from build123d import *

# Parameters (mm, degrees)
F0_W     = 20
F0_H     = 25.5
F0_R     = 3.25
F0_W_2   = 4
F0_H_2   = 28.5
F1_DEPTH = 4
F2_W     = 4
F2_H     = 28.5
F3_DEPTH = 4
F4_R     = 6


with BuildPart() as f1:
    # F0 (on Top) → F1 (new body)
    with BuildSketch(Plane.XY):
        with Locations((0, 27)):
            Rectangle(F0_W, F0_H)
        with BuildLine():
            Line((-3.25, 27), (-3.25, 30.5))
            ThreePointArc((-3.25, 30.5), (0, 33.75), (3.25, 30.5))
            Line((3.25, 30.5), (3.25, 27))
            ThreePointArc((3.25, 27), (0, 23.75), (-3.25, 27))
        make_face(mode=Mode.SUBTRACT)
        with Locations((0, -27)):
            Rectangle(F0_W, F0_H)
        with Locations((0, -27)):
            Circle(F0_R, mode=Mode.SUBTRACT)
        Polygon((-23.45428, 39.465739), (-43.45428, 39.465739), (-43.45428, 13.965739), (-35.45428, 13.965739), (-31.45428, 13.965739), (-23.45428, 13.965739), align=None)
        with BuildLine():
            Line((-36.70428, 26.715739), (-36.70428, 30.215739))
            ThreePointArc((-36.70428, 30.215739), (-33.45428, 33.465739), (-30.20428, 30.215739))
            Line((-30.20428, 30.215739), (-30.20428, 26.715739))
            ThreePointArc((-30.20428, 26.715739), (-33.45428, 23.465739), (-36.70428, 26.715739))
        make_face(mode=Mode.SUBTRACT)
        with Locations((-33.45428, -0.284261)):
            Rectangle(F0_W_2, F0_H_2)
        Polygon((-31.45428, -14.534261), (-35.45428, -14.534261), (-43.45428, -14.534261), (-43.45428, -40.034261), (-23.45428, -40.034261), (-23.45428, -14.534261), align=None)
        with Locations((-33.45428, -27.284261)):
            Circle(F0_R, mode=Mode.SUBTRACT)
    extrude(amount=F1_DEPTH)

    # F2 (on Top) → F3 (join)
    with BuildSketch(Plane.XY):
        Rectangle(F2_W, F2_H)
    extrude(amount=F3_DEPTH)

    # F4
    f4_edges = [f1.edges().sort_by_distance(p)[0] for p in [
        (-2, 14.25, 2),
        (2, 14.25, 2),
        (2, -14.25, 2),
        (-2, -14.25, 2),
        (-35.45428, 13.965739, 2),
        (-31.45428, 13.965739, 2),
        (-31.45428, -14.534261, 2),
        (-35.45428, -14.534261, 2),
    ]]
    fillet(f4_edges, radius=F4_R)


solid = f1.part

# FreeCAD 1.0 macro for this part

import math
import FreeCAD as App
import Part
import Sketcher
from FreeCAD import Vector


def edges_at(feature, points):
    """Names of the edges that pass closest to the given points."""
    edges = feature.Shape.Edges
    near = lambda p: min(range(len(edges)), key=lambda i: edges[i].distToShape(Part.Vertex(*p))[0])
    return sorted({f"Edge{near(p) + 1}" for p in points})


def add_polygon(sketch, points):
    """Adds a closed chain of lines whose ends are joined by coincident constraints."""
    first, n = sketch.GeometryCount, len(points)
    for a, b in zip(points, points[1:] + points[:1]):
        sketch.addGeometry(Part.LineSegment(App.Vector(*a, 0), App.Vector(*b, 0)), False)
    for i in range(n):
        sketch.addConstraint(Sketcher.Constraint("Coincident", first + i, 2, first + (i + 1) % n, 1))

doc = App.newDocument("Part")
params = doc.addObject("Spreadsheet::Sheet", "Params")
for row, (alias, value) in enumerate([
    ("sketch1_diameter", "6.5 mm"),
    ("sketch1_width", "20 mm"),
    ("sketch1_width2", "8 mm"),
    ("sketch1_height", "25.5 mm"),
    ("sketch1_height2", "3.5 mm"),
    ("pad1_length", "4 mm"),
    ("sketch2_width", "4 mm"),
    ("sketch2_height", "28.5 mm"),
    ("pad2_length", "4 mm"),
    ("fillet_radius", "6 mm"),
], start=1):
    params.set(f"A{row}", alias)
    params.set(f"B{row}", "=" + value)
    params.setAlias(f"B{row}", alias)

body = doc.addObject("PartDesign::Body", "Body")
body.AllowCompound = True

sketch1 = body.newObject("Sketcher::SketchObject", "Sketch")
sketch1.AttachmentSupport = (doc.getObject("XY_Plane"), [""])
sketch1.MapMode = "FlatFace"
add_polygon(sketch1, [(-10, 39.75), (-10, 14.25), (10, 14.25), (10, 39.75)])
sketch1.addGeometry(Part.ArcOfCircle(Part.Circle(Vector(0, 27, 0), Vector(0, 0, 1), 3.25), math.radians(180), math.radians(360)), False)
sketch1.addGeometry(Part.LineSegment(Vector(-3.25, 27, 0), Vector(-3.25, 30.5, 0)), False)
sketch1.addGeometry(Part.ArcOfCircle(Part.Circle(Vector(0, 30.5, 0), Vector(0, 0, 1), 3.25), math.radians(0), math.radians(180)), False)
sketch1.addGeometry(Part.LineSegment(Vector(3.25, 30.5, 0), Vector(3.25, 27, 0)), False)
add_polygon(sketch1, [(-10, -14.25), (-10, -39.75), (10, -39.75), (10, -14.25)])
sketch1.addGeometry(Part.Circle(Vector(0, -27, 0), Vector(0, 0, 1), 3.25), False)
add_polygon(sketch1, [(-23.45428, 39.465739), (-43.45428, 39.465739), (-43.45428, 13.965739), (-35.45428, 13.965739), (-35.45428, -14.534261), (-43.45428, -14.534261), (-43.45428, -40.034261), (-23.45428, -40.034261), (-23.45428, -14.534261), (-31.45428, -14.534261), (-31.45428, 13.965739), (-23.45428, 13.965739)])
sketch1.addGeometry(Part.Circle(Vector(-33.45428, -27.284261, 0), Vector(0, 0, 1), 3.25), False)
sketch1.addGeometry(Part.ArcOfCircle(Part.Circle(Vector(-33.45428, 26.715739, 0), Vector(0, 0, 1), 3.25), math.radians(180), math.radians(360)), False)
sketch1.addGeometry(Part.LineSegment(Vector(-36.70428, 26.715739, 0), Vector(-36.70428, 30.215739, 0)), False)
sketch1.addGeometry(Part.ArcOfCircle(Part.Circle(Vector(-33.45428, 30.215739, 0), Vector(0, 0, 1), 3.25), math.radians(0), math.radians(180)), False)
sketch1.addGeometry(Part.LineSegment(Vector(-30.20428, 30.215739, 0), Vector(-30.20428, 26.715739, 0)), False)
sketch1.addConstraint(Sketcher.Constraint("Tangent", 4, 1, 5, 1))
sketch1.addConstraint(Sketcher.Constraint("Tangent", 5, 2, 6, 2))
sketch1.addConstraint(Sketcher.Constraint("Tangent", 6, 1, 7, 1))
sketch1.addConstraint(Sketcher.Constraint("Tangent", 7, 2, 4, 2))
sketch1.addConstraint(Sketcher.Constraint("Tangent", 26, 1, 27, 1))
sketch1.addConstraint(Sketcher.Constraint("Tangent", 27, 2, 28, 2))
sketch1.addConstraint(Sketcher.Constraint("Tangent", 28, 1, 29, 1))
sketch1.addConstraint(Sketcher.Constraint("Tangent", 29, 2, 26, 2))
sketch1.addConstraint(Sketcher.Constraint("Vertical", 0))
sketch1.addConstraint(Sketcher.Constraint("Horizontal", 1))
sketch1.addConstraint(Sketcher.Constraint("Vertical", 2))
sketch1.addConstraint(Sketcher.Constraint("Horizontal", 3))
sketch1.addConstraint(Sketcher.Constraint("Vertical", 5))
sketch1.addConstraint(Sketcher.Constraint("Vertical", 7))
sketch1.addConstraint(Sketcher.Constraint("Vertical", 8))
sketch1.addConstraint(Sketcher.Constraint("Horizontal", 9))
sketch1.addConstraint(Sketcher.Constraint("Vertical", 10))
sketch1.addConstraint(Sketcher.Constraint("Horizontal", 11))
sketch1.addConstraint(Sketcher.Constraint("Horizontal", 13))
sketch1.addConstraint(Sketcher.Constraint("Vertical", 14))
sketch1.addConstraint(Sketcher.Constraint("Horizontal", 15))
sketch1.addConstraint(Sketcher.Constraint("Vertical", 16))
sketch1.addConstraint(Sketcher.Constraint("Horizontal", 17))
sketch1.addConstraint(Sketcher.Constraint("Vertical", 18))
sketch1.addConstraint(Sketcher.Constraint("Horizontal", 19))
sketch1.addConstraint(Sketcher.Constraint("Vertical", 20))
sketch1.addConstraint(Sketcher.Constraint("Horizontal", 21))
sketch1.addConstraint(Sketcher.Constraint("Vertical", 22))
sketch1.addConstraint(Sketcher.Constraint("Horizontal", 23))
sketch1.addConstraint(Sketcher.Constraint("Vertical", 24))
sketch1.addConstraint(Sketcher.Constraint("Vertical", 27))
sketch1.addConstraint(Sketcher.Constraint("Vertical", 29))
sketch1.addConstraint(Sketcher.Constraint("Equal", 6, 12))
sketch1.addConstraint(Sketcher.Constraint("Equal", 12, 25))
sketch1.addConstraint(Sketcher.Constraint("Equal", 25, 26))
sketch1.addConstraint(Sketcher.Constraint("Symmetric", 4, 3, 12, 3, -1, 1))
sketch1.addConstraint(Sketcher.Constraint("Symmetric", 2, 2, 8, 2, -1, 1))
sketch1.addConstraint(Sketcher.Constraint("Symmetric", 0, 2, 10, 2, -1, 1))
sketch1.addConstraint(Sketcher.Constraint("PointOnObject", 4, 3, -2))
sketch1.addConstraint(Sketcher.Constraint("Horizontal", 17, 2, 20, 2))
sketch1.addConstraint(Sketcher.Constraint("Horizontal", 15, 2, 22, 2))
sketch1.addConstraint(Sketcher.Constraint("Vertical", 25, 3, 26, 3))
sketch1.addConstraint(Sketcher.Constraint("Vertical", 3, 2, 8, 2))
sketch1.addConstraint(Sketcher.Constraint("Vertical", 14, 2, 17, 2))
sketch1.addConstraint(Sketcher.Constraint("Vertical", 20, 2, 23, 2))
sketch1.addConstraint(Sketcher.Constraint("Equal", 11, 13))
sketch1.addConstraint(Sketcher.Constraint("Equal", 17, 21))
sketch1.addConstraint(Sketcher.Constraint("Equal", 10, 14))
sketch1.addConstraint(Sketcher.Constraint("Equal", 14, 18))
sketch1.addConstraint(Sketcher.Constraint("Equal", 7, 27))
sketch1.addConstraint(Sketcher.Constraint("Diameter", 12, 6.5))
sketch1.addConstraint(Sketcher.Constraint("DistanceX", 1, 1, 1, 2, 20.0))
sketch1.addConstraint(Sketcher.Constraint("DistanceX", 15, 1, 15, 2, 8.0))
sketch1.addConstraint(Sketcher.Constraint("DistanceY", 0, 2, 0, 1, 25.5))
sketch1.addConstraint(Sketcher.Constraint("DistanceY", 5, 1, 5, 2, 3.5))
sketch1.addConstraint(Sketcher.Constraint("DistanceY", 16, 2, 16, 1, 28.5))
sketch1.addConstraint(Sketcher.Constraint("DistanceY", -1, 1, 4, 3, 27.0))
sketch1.addConstraint(Sketcher.Constraint("DistanceY", 25, 3, 26, 3, 54.0))
sketch1.addConstraint(Sketcher.Constraint("DistanceY", 8, 2, 0, 2, 54.0))
sketch1.addConstraint(Sketcher.Constraint("DistanceX", 13, 2, 28, 3, 10.0))
sketch1.addConstraint(Sketcher.Constraint("DistanceY", 28, 3, 13, 2, 9.25))
sketch1.addConstraint(Sketcher.Constraint("DistanceX", 25, 3, -1, 1, 33.45428))
sketch1.addConstraint(Sketcher.Constraint("DistanceY", 25, 3, -1, 1, 27.284261))
sketch1.setExpression("Constraints[70]", "Params.sketch1_diameter")
sketch1.setExpression("Constraints[71]", "Params.sketch1_width")
sketch1.setExpression("Constraints[72]", "Params.sketch1_width2")
sketch1.setExpression("Constraints[73]", "Params.sketch1_height")
sketch1.setExpression("Constraints[74]", "Params.sketch1_height2")
pad1 = body.newObject("PartDesign::Pad", "Pad")
pad1.Profile = sketch1
pad1.setExpression("Length", "Params.pad1_length")

sketch2 = body.newObject("Sketcher::SketchObject", "Sketch001")
sketch2.AttachmentSupport = (doc.getObject("XY_Plane"), [""])
sketch2.MapMode = "FlatFace"
add_polygon(sketch2, [(-2, 14.25), (-2, -14.25), (2, -14.25), (2, 14.25)])
sketch2.addConstraint(Sketcher.Constraint("Vertical", 0))
sketch2.addConstraint(Sketcher.Constraint("Horizontal", 1))
sketch2.addConstraint(Sketcher.Constraint("Vertical", 2))
sketch2.addConstraint(Sketcher.Constraint("Horizontal", 3))
sketch2.addConstraint(Sketcher.Constraint("Symmetric", 0, 2, 2, 2, -1, 1))
sketch2.addConstraint(Sketcher.Constraint("DistanceX", 1, 1, 1, 2, 4.0))
sketch2.addConstraint(Sketcher.Constraint("DistanceY", 0, 2, 0, 1, 28.5))
sketch2.setExpression("Constraints[9]", "Params.sketch2_width")
sketch2.setExpression("Constraints[10]", "Params.sketch2_height")
pad2 = body.newObject("PartDesign::Pad", "Pad001")
pad2.Profile = sketch2
pad2.setExpression("Length", "Params.pad2_length")
doc.recompute()

fillet = body.newObject("PartDesign::Fillet", "Fillet")
fillet.Base = (pad2, edges_at(pad2, [
    (-2, 14.25, 2),
    (2, 14.25, 2),
    (2, -14.25, 2),
    (-2, -14.25, 2),
    (-35.454, 13.966, 2),
    (-31.454, 13.966, 2),
    (-31.454, -14.534, 2),
    (-35.454, -14.534, 2),
]))
fillet.setExpression("Radius", "Params.fillet_radius")

doc.recompute()
